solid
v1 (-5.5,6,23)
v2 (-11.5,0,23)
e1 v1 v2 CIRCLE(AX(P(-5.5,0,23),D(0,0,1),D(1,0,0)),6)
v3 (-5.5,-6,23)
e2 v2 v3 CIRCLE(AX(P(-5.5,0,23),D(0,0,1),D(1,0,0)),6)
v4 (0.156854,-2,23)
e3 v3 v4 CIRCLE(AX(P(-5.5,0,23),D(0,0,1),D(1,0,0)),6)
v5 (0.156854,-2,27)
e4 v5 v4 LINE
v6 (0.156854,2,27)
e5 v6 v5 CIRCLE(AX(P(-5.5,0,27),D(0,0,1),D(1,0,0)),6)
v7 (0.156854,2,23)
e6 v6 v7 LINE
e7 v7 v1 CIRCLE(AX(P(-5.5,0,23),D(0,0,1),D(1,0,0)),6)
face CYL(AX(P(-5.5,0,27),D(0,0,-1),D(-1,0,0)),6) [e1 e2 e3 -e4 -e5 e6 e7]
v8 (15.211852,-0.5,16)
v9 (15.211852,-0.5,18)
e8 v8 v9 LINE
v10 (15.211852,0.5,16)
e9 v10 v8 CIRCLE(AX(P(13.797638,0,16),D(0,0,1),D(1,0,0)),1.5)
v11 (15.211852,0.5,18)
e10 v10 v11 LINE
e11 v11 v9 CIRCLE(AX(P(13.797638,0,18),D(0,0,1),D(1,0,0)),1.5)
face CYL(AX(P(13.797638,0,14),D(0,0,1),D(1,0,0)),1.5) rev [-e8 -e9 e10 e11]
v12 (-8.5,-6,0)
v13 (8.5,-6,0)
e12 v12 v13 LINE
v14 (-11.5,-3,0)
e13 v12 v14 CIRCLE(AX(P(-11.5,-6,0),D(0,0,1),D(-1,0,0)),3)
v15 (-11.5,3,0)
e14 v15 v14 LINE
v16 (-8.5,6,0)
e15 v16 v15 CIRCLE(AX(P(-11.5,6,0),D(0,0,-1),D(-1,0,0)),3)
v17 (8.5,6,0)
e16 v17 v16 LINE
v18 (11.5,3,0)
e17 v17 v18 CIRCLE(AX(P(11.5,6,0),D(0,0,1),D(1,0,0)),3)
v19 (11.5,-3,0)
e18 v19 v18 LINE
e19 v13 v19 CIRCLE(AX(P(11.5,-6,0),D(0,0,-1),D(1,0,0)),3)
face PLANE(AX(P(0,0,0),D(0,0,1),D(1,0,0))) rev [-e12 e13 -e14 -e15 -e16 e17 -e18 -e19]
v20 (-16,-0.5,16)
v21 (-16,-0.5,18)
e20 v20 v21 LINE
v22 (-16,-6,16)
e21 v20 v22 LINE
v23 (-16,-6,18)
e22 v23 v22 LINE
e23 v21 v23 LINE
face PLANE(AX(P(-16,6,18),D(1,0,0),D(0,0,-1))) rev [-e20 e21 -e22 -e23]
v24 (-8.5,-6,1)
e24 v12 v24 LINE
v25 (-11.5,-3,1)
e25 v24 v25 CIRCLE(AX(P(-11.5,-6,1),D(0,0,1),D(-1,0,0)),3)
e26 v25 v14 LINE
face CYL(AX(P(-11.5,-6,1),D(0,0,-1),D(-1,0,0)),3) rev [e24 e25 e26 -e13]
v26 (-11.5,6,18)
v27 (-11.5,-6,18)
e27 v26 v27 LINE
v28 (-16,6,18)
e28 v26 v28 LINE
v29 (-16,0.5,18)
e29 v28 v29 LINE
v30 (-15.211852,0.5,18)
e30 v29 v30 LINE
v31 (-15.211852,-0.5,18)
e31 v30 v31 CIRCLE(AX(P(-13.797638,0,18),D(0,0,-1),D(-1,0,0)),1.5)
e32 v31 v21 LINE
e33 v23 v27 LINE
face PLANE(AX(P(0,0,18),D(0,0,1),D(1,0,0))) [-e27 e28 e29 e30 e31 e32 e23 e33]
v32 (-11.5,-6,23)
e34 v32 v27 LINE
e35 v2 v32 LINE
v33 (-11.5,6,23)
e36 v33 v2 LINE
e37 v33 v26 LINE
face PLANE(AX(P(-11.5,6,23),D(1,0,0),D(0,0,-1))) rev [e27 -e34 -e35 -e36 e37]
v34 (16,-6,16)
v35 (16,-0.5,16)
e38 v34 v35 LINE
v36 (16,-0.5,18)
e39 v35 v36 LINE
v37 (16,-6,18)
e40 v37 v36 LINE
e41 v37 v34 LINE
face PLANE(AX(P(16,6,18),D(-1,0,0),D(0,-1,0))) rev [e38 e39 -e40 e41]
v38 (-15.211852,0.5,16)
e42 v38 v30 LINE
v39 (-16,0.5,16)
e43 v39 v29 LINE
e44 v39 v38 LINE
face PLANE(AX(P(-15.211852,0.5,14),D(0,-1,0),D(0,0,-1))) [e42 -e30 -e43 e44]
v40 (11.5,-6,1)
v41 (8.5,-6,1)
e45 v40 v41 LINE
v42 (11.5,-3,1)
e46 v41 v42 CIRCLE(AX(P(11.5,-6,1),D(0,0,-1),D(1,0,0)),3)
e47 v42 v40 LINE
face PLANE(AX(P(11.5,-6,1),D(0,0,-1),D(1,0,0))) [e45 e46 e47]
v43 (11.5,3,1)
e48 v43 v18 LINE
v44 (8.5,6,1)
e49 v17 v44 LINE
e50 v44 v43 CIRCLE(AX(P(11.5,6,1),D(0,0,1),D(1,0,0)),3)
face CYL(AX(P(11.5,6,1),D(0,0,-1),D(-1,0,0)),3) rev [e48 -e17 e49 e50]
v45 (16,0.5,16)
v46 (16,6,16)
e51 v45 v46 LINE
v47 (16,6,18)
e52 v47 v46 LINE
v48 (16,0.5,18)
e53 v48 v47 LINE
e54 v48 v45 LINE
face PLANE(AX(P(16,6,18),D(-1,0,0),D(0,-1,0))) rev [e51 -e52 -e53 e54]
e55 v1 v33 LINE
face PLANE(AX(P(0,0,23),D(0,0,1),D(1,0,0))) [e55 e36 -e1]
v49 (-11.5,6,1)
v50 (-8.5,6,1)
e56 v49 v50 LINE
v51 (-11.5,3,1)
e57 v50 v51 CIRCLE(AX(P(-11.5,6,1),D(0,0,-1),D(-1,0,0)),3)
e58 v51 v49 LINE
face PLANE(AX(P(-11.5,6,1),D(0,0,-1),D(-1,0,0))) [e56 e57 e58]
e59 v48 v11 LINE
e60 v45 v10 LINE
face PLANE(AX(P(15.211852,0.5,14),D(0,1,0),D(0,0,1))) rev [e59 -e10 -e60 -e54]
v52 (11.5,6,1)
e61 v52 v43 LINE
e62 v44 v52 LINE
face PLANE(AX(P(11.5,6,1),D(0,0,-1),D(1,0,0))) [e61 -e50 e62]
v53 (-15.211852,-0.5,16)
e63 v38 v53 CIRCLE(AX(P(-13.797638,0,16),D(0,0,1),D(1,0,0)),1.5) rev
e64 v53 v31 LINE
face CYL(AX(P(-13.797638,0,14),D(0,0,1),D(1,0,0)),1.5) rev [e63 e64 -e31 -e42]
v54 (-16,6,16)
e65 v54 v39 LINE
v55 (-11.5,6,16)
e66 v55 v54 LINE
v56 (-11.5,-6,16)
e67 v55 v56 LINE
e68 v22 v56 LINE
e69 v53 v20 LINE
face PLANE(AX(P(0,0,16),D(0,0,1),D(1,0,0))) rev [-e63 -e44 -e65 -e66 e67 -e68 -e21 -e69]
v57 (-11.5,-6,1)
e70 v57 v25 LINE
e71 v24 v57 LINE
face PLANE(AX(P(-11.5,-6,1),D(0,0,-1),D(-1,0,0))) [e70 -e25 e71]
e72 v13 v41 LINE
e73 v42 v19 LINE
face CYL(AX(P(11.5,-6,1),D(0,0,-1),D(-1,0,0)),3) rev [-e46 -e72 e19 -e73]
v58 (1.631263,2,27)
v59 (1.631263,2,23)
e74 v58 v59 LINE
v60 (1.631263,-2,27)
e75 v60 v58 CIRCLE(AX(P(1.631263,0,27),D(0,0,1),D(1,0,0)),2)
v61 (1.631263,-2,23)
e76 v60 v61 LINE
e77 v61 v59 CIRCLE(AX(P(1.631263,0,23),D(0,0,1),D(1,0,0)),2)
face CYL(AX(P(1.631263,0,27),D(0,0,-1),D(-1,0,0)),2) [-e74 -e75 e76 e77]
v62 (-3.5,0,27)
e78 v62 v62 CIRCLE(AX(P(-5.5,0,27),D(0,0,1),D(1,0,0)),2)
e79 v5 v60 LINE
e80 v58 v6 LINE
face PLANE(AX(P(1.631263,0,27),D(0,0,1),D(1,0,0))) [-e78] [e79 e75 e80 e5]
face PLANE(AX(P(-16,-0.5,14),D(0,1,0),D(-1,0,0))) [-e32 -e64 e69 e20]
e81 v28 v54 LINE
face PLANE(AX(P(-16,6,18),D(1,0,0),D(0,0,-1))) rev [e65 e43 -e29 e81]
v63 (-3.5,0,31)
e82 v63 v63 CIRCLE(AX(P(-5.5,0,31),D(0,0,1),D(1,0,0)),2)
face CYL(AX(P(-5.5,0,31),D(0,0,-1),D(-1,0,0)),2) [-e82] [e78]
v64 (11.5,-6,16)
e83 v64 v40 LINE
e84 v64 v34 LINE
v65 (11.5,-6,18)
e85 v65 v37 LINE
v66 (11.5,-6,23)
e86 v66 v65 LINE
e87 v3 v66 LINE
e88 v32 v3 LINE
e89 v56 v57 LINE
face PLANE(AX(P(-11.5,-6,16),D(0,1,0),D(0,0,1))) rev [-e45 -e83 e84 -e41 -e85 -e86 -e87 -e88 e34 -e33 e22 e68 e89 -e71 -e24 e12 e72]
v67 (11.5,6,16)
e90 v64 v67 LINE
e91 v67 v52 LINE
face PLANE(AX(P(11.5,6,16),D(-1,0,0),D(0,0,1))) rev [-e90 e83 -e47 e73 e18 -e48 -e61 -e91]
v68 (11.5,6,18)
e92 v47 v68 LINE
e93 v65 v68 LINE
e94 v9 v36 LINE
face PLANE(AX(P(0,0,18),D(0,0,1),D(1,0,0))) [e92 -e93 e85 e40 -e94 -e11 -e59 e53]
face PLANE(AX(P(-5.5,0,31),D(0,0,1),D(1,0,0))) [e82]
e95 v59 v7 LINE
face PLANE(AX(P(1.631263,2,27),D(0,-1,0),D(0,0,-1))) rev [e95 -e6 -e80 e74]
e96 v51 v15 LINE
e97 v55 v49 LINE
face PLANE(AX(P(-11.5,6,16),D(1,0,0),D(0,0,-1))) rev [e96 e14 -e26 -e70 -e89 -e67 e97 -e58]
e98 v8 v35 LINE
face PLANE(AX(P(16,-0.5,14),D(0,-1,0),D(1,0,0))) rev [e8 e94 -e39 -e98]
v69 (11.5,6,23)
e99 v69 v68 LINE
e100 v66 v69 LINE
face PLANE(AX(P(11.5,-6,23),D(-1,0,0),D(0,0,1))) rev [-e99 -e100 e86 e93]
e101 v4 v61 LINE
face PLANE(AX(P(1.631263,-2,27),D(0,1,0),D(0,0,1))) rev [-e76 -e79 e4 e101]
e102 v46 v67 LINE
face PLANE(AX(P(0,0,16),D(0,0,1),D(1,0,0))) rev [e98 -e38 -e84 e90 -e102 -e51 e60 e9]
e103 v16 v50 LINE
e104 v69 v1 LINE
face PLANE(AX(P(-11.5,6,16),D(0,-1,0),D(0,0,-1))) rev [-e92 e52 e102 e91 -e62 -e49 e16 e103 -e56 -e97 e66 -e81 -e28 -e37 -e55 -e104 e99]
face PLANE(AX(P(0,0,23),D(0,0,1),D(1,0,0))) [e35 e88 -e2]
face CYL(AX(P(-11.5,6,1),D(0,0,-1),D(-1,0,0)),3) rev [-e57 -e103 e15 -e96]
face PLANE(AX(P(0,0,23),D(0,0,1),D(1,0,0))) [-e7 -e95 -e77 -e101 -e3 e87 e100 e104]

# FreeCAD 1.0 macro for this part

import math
import FreeCAD as App
import Part
import Sketcher
from FreeCAD import Vector


def add_polygon(sketch, points):
    """Adds a closed chain of lines whose ends are joined by coincident constraints."""
    first, n = sketch.GeometryCount, len(points)
    for a, b in zip(points, points[1:] + points[:1]):
        sketch.addGeometry(Part.LineSegment(App.Vector(*a, 0), App.Vector(*b, 0)), False)
    for i in range(n):
        sketch.addConstraint(Sketcher.Constraint("Coincident", first + i, 2, first + (i + 1) % n, 1))

doc = App.newDocument("Part")
body = doc.addObject("PartDesign::Body", "Body")

sketch1 = body.newObject("Sketcher::SketchObject", "Sketch")
sketch1.AttachmentSupport = (doc.getObject("XY_Plane"), [""])
sketch1.MapMode = "FlatFace"
add_polygon(sketch1, [(-11.5, 6), (-11.5, -6), (11.5, -6), (11.5, 6)])
sketch1.addConstraint(Sketcher.Constraint("Vertical", 0))
sketch1.addConstraint(Sketcher.Constraint("Horizontal", 1))
sketch1.addConstraint(Sketcher.Constraint("Vertical", 2))
sketch1.addConstraint(Sketcher.Constraint("Horizontal", 3))
sketch1.addConstraint(Sketcher.Constraint("Symmetric", 0, 2, 2, 2, -1, 1))
sketch1.addConstraint(Sketcher.Constraint("DistanceX", 1, 1, 1, 2, 23.0))
sketch1.addConstraint(Sketcher.Constraint("DistanceY", 0, 2, 0, 1, 12.0))
pad1 = body.newObject("PartDesign::Pad", "Pad")
pad1.Profile = sketch1
pad1.Length = 16

sketch2 = body.newObject("Sketcher::SketchObject", "Sketch001")
sketch2.AttachmentSupport = (doc.getObject("XY_Plane"), [""])
sketch2.MapMode = "FlatFace"
sketch2.AttachmentOffset = App.Placement(Vector(0, 0, 16), App.Rotation())
add_polygon(sketch2, [(-16, 6), (-16, -6), (16, -6), (16, 6)])
sketch2.addConstraint(Sketcher.Constraint("Vertical", 0))
sketch2.addConstraint(Sketcher.Constraint("Horizontal", 1))
sketch2.addConstraint(Sketcher.Constraint("Vertical", 2))
sketch2.addConstraint(Sketcher.Constraint("Horizontal", 3))
sketch2.addConstraint(Sketcher.Constraint("Symmetric", 0, 2, 2, 2, -1, 1))
sketch2.addConstraint(Sketcher.Constraint("DistanceX", 1, 1, 1, 2, 32.0))
sketch2.addConstraint(Sketcher.Constraint("DistanceY", 0, 2, 0, 1, 12.0))
pad2 = body.newObject("PartDesign::Pad", "Pad001")
pad2.Profile = sketch2
pad2.Length = 2

sketch3 = body.newObject("Sketcher::SketchObject", "Sketch002")
sketch3.AttachmentSupport = (doc.getObject("XY_Plane"), [""])
sketch3.MapMode = "FlatFace"
sketch3.AttachmentOffset = App.Placement(Vector(0, 0, 18), App.Rotation())
add_polygon(sketch3, [(-11.5, 6), (-11.5, -6), (11.5, -6), (11.5, 6)])
sketch3.addConstraint(Sketcher.Constraint("Vertical", 0))
sketch3.addConstraint(Sketcher.Constraint("Horizontal", 1))
sketch3.addConstraint(Sketcher.Constraint("Vertical", 2))
sketch3.addConstraint(Sketcher.Constraint("Horizontal", 3))
sketch3.addConstraint(Sketcher.Constraint("Symmetric", 0, 2, 2, 2, -1, 1))
sketch3.addConstraint(Sketcher.Constraint("DistanceX", 1, 1, 1, 2, 23.0))
sketch3.addConstraint(Sketcher.Constraint("DistanceY", 0, 2, 0, 1, 12.0))
pad3 = body.newObject("PartDesign::Pad", "Pad002")
pad3.Profile = sketch3
pad3.Length = 5

sketch4 = body.newObject("Sketcher::SketchObject", "Sketch003")
sketch4.AttachmentSupport = (doc.getObject("XY_Plane"), [""])
sketch4.MapMode = "FlatFace"
sketch4.AttachmentOffset = App.Placement(Vector(0, 0, 23), App.Rotation())
sketch4.addGeometry(Part.LineSegment(Vector(1.631263, 2, 0), Vector(0.156854, 2, 0)), False)
sketch4.addGeometry(Part.ArcOfCircle(Part.Circle(Vector(-5.5, 0, 0), Vector(0, 0, 1), 6), math.radians(19.471221), math.radians(340.528779)), False)
sketch4.addGeometry(Part.LineSegment(Vector(0.156854, -2, 0), Vector(1.631263, -2, 0)), False)
sketch4.addGeometry(Part.ArcOfCircle(Part.Circle(Vector(1.631263, 0, 0), Vector(0, 0, 1), 2), math.radians(-90), math.radians(90)), False)
sketch4.addConstraint(Sketcher.Constraint("Coincident", 0, 2, 1, 1))
sketch4.addConstraint(Sketcher.Constraint("Coincident", 1, 2, 2, 1))
sketch4.addConstraint(Sketcher.Constraint("Tangent", 2, 2, 3, 1))
sketch4.addConstraint(Sketcher.Constraint("Tangent", 3, 2, 0, 1))
sketch4.addConstraint(Sketcher.Constraint("Horizontal", 0))
sketch4.addConstraint(Sketcher.Constraint("Horizontal", 2))
sketch4.addConstraint(Sketcher.Constraint("Symmetric", 0, 2, 1, 2, -1))
sketch4.addConstraint(Sketcher.Constraint("Radius", 1, 6.0))
sketch4.addConstraint(Sketcher.Constraint("Radius", 3, 2.0))
sketch4.addConstraint(Sketcher.Constraint("DistanceX", 1, 3, -1, 1, 5.5))
sketch4.addConstraint(Sketcher.Constraint("DistanceX", 0, 2, 0, 1, 1.474409))
pad4 = body.newObject("PartDesign::Pad", "Pad003")
pad4.Profile = sketch4
pad4.Length = 4

sketch5 = body.newObject("Sketcher::SketchObject", "Sketch004")
sketch5.AttachmentSupport = (doc.getObject("XY_Plane"), [""])
sketch5.MapMode = "FlatFace"
sketch5.AttachmentOffset = App.Placement(Vector(0, 0, 27), App.Rotation())
sketch5.addGeometry(Part.Circle(Vector(-5.5, 0, 0), Vector(0, 0, 1), 2), False)
sketch5.addConstraint(Sketcher.Constraint("PointOnObject", 0, 3, -1))
sketch5.addConstraint(Sketcher.Constraint("Diameter", 0, 4.0))
sketch5.addConstraint(Sketcher.Constraint("DistanceX", 0, 3, -1, 1, 5.5))
pad5 = body.newObject("PartDesign::Pad", "Pad004")
pad5.Profile = sketch5
pad5.Length = 4

sketch6 = body.newObject("Sketcher::SketchObject", "Sketch005")
sketch6.AttachmentSupport = (doc.getObject("XY_Plane"), [""])
sketch6.MapMode = "FlatFace"
sketch6.AttachmentOffset = App.Placement(Vector(0, 0, 18), App.Rotation())
sketch6.addGeometry(Part.LineSegment(Vector(16, 0.5, 0), Vector(15.211852, 0.5, 0)), False)
sketch6.addGeometry(Part.ArcOfCircle(Part.Circle(Vector(13.797638, 0, 0), Vector(0, 0, 1), 1.5), math.radians(19.471221), math.radians(340.528779)), False)
sketch6.addGeometry(Part.LineSegment(Vector(15.211852, -0.5, 0), Vector(16, -0.5, 0)), False)
sketch6.addGeometry(Part.LineSegment(Vector(16, -0.5, 0), Vector(16, 0.5, 0)), False)
sketch6.addConstraint(Sketcher.Constraint("Coincident", 0, 2, 1, 1))
sketch6.addConstraint(Sketcher.Constraint("Coincident", 1, 2, 2, 1))
sketch6.addConstraint(Sketcher.Constraint("Coincident", 2, 2, 3, 1))
sketch6.addConstraint(Sketcher.Constraint("Coincident", 3, 2, 0, 1))
sketch6.addConstraint(Sketcher.Constraint("Horizontal", 0))
sketch6.addConstraint(Sketcher.Constraint("Horizontal", 2))
sketch6.addConstraint(Sketcher.Constraint("Vertical", 3))
sketch6.addConstraint(Sketcher.Constraint("Symmetric", 0, 2, 1, 2, -1))
sketch6.addConstraint(Sketcher.Constraint("Radius", 1, 1.5))
sketch6.addConstraint(Sketcher.Constraint("DistanceY", 3, 1, 3, 2, 1.0))
sketch6.addConstraint(Sketcher.Constraint("DistanceX", -1, 1, 2, 2, 16.0))
sketch6.addConstraint(Sketcher.Constraint("DistanceX", 0, 2, 0, 1, 0.788148))
pocket1 = body.newObject("PartDesign::Pocket", "Pocket")
pocket1.Profile = sketch6
pocket1.Length = 4
doc.recompute()

mirrored = body.newObject("PartDesign::Mirrored", "Mirrored")
mirrored.Originals = [pocket1]
mirrored.MirrorPlane = (doc.getObject("YZ_Plane"), [""])
body.Tip = mirrored

sketch7 = body.newObject("Sketcher::SketchObject", "Sketch006")
sketch7.AttachmentSupport = (doc.getObject("XY_Plane"), [""])
sketch7.MapMode = "FlatFace"
sketch7.addGeometry(Part.Circle(Vector(-11.5, 6, 0), Vector(0, 0, 1), 3), False)
sketch7.addConstraint(Sketcher.Constraint("Diameter", 0, 6.0))
sketch7.addConstraint(Sketcher.Constraint("DistanceY", -1, 1, 0, 3, 6.0))
sketch7.addConstraint(Sketcher.Constraint("DistanceX", 0, 3, -1, 1, 11.5))
pocket2 = body.newObject("PartDesign::Pocket", "Pocket001")
pocket2.Profile = sketch7
pocket2.Length = 1
pocket2.Reversed = True
doc.recompute()

mirrored2 = body.newObject("PartDesign::Mirrored", "Mirrored001")
mirrored2.Originals = [pocket2]
mirrored2.MirrorPlane = (doc.getObject("YZ_Plane"), [""])
body.Tip = mirrored2
doc.recompute()

mirrored3 = body.newObject("PartDesign::Mirrored", "Mirrored002")
mirrored3.Originals = [pocket2]
mirrored3.MirrorPlane = (doc.getObject("XZ_Plane"), [""])
body.Tip = mirrored3

sketch8 = body.newObject("Sketcher::SketchObject", "Sketch007")
sketch8.AttachmentSupport = (doc.getObject("XY_Plane"), [""])
sketch8.MapMode = "FlatFace"
sketch8.addGeometry(Part.Circle(Vector(11.5, -6, 0), Vector(0, 0, 1), 3), False)
sketch8.addConstraint(Sketcher.Constraint("Diameter", 0, 6.0))
sketch8.addConstraint(Sketcher.Constraint("DistanceY", 0, 3, -1, 1, 6.0))
sketch8.addConstraint(Sketcher.Constraint("DistanceX", -1, 1, 0, 3, 11.5))
pocket3 = body.newObject("PartDesign::Pocket", "Pocket002")
pocket3.Profile = sketch8
pocket3.Length = 1
pocket3.Reversed = True

doc.recompute()
